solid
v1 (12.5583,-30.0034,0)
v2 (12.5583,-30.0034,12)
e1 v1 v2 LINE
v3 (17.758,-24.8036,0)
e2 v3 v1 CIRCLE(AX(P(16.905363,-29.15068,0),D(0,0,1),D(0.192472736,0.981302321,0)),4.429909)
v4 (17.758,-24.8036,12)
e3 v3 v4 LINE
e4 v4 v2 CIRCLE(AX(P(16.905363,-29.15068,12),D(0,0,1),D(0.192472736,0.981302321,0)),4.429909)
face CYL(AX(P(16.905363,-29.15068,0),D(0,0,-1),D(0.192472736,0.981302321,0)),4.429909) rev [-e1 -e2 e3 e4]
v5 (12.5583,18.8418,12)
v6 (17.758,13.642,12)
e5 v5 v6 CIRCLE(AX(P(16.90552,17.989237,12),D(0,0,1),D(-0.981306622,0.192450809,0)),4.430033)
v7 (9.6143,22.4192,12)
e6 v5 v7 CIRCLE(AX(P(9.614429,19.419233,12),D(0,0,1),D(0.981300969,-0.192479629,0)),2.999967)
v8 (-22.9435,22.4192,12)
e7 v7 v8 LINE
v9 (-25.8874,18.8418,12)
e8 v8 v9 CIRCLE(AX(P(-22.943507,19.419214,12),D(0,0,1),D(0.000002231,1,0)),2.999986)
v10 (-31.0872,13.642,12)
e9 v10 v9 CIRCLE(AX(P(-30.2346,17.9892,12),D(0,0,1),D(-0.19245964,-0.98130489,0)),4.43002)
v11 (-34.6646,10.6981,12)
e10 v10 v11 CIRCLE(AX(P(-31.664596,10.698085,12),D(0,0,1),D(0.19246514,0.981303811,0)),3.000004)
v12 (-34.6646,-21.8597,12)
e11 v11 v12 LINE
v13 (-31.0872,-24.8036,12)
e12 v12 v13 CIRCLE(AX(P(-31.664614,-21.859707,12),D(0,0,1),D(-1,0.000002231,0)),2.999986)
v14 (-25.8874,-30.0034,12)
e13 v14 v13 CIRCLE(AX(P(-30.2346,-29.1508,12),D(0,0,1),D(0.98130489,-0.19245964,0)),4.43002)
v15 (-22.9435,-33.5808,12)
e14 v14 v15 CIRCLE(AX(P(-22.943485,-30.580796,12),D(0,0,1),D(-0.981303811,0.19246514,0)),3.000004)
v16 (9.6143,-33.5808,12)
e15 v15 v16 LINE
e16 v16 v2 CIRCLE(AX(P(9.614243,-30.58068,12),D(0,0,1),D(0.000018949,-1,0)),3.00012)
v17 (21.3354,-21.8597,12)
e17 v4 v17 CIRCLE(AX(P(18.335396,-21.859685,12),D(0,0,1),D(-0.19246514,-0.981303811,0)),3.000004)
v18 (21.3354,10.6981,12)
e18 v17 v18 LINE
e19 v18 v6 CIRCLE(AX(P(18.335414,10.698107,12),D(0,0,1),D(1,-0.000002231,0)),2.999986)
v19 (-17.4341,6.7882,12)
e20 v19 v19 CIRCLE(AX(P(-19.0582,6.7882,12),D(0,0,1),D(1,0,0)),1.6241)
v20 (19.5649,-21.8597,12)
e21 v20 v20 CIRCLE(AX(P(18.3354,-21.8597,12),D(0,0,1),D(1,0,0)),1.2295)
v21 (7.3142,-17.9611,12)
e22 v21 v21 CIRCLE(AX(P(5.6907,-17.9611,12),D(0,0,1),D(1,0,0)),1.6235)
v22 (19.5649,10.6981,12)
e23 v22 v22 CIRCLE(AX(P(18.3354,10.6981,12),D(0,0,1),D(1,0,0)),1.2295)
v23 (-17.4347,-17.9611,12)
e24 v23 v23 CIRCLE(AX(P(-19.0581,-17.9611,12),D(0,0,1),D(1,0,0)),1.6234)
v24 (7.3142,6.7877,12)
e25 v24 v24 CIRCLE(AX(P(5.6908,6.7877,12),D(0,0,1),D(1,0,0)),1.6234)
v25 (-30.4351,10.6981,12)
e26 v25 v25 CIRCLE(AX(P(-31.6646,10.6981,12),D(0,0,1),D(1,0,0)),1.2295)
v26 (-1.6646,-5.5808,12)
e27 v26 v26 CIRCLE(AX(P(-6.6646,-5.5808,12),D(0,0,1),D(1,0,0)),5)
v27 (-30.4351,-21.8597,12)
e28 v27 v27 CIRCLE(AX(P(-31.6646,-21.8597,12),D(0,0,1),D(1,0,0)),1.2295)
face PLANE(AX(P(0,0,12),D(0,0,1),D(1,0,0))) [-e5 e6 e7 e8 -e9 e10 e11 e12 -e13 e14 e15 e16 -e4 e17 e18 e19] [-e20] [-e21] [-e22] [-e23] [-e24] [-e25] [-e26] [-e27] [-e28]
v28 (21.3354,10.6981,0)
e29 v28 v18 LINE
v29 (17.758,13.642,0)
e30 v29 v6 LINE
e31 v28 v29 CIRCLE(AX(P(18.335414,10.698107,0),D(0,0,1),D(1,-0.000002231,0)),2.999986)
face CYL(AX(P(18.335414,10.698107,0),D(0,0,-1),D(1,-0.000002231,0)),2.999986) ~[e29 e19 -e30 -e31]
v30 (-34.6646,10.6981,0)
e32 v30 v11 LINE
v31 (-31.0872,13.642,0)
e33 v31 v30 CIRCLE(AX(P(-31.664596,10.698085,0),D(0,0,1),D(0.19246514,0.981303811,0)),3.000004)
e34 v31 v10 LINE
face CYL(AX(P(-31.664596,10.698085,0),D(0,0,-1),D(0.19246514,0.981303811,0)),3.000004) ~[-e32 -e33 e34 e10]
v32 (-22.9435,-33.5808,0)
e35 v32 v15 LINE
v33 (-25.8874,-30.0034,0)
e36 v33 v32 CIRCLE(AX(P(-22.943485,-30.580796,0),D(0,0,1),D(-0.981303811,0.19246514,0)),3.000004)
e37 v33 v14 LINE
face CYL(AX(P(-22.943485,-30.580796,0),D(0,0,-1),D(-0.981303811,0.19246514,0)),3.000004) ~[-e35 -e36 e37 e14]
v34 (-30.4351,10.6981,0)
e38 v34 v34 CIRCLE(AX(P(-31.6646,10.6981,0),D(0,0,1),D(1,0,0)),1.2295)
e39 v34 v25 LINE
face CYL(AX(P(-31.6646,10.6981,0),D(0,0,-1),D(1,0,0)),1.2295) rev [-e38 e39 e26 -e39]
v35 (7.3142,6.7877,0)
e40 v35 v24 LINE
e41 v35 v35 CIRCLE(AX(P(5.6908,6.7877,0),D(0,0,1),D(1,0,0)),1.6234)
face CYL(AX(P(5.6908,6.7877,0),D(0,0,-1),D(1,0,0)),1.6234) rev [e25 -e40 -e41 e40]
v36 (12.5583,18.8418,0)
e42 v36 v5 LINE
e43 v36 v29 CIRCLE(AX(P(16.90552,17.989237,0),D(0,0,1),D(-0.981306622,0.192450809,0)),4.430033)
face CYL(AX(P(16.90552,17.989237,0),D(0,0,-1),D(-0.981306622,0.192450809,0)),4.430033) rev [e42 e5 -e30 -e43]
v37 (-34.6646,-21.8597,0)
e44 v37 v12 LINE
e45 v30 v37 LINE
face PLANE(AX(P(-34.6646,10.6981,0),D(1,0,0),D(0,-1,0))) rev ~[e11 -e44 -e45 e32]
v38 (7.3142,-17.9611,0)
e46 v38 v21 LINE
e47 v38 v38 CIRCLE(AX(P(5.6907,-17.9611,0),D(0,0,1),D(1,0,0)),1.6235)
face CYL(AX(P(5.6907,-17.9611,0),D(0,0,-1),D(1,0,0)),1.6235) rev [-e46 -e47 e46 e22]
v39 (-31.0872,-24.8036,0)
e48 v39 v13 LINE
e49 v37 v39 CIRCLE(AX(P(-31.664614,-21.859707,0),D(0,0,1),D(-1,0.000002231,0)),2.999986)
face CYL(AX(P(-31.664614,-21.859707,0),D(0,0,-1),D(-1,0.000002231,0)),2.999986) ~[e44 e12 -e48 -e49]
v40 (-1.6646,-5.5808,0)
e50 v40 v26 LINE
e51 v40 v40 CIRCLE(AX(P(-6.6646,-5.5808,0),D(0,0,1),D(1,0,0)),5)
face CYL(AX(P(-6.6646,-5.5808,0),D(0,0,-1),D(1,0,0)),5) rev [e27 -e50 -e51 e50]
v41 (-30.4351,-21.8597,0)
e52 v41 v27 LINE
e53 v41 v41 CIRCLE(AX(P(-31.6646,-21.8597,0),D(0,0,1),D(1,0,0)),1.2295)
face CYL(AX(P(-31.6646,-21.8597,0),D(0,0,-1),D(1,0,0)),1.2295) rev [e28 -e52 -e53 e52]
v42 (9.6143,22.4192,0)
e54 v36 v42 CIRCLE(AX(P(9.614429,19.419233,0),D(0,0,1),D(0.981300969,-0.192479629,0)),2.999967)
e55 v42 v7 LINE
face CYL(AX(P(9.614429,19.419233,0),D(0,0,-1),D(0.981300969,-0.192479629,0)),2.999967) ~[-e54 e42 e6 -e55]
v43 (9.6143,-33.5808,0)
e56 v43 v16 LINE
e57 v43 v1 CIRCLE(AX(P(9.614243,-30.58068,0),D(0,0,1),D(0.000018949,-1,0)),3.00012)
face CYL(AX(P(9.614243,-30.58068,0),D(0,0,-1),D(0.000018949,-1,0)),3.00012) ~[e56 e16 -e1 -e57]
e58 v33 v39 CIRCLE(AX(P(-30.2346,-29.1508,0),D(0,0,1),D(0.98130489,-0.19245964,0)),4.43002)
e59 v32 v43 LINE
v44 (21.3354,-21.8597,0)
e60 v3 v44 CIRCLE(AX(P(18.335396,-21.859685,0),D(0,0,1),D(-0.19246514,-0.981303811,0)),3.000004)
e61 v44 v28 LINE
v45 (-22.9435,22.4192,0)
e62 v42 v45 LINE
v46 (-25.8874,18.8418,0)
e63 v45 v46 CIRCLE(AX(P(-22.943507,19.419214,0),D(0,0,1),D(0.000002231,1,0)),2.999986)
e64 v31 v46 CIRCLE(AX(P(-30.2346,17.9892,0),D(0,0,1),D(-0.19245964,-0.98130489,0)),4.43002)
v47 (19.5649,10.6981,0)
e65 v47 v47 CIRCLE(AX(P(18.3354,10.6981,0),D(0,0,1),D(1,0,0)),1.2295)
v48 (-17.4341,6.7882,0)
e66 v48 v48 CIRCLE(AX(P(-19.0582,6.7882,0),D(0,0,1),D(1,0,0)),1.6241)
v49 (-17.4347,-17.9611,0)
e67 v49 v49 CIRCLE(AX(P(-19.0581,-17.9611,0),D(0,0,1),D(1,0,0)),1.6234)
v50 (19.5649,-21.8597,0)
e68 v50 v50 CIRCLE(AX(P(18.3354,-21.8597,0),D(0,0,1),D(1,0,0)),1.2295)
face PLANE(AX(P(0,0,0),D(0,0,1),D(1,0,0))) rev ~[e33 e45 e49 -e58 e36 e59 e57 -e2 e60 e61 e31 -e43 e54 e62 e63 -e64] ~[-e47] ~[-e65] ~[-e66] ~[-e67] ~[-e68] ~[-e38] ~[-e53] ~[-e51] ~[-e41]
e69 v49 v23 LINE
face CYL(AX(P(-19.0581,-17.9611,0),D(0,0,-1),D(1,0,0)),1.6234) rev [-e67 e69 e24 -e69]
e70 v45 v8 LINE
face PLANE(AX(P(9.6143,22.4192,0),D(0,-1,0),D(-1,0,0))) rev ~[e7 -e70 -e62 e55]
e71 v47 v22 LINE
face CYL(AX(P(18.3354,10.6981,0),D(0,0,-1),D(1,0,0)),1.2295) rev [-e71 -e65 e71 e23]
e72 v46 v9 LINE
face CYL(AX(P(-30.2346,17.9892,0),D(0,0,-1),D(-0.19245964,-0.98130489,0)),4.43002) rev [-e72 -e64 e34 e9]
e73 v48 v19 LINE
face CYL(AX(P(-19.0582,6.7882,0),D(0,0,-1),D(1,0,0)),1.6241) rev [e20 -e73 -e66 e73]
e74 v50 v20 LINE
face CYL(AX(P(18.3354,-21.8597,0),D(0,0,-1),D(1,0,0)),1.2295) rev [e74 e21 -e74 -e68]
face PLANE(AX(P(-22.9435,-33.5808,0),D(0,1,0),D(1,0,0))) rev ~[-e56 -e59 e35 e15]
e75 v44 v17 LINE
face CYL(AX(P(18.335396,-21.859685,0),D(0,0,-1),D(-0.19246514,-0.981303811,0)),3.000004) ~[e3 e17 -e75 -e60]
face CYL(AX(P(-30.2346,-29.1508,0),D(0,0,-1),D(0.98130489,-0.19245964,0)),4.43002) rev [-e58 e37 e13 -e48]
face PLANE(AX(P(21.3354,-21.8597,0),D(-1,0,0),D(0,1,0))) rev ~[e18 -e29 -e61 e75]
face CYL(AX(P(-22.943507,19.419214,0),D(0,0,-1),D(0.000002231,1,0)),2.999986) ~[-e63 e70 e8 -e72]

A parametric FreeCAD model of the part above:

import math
import FreeCAD as App
import Part
import Sketcher

V = App.Vector
Q = App.Units.Quantity

doc = App.newDocument("Part")
body = doc.addObject("PartDesign::Body", "Body")

# Sketch on XY plane
sketch1 = body.newObject("Sketcher::SketchObject", "Sketch")
sketch1.AttachmentSupport = (doc.getObject("XY_Plane"), [""])
sketch1.MapMode = "FlatFace"
sketch1.addGeometry([
    Part.LineSegment(V(21.3354, -21.8597, 0), V(21.3354, 10.6981, 0)),  # 0
    Part.ArcOfCircle(Part.Circle(V(18.3354, 10.6981, 0), V(0, 0, 1), 3), math.radians(0), math.radians(101.09681)),  # 1
    Part.ArcOfCircle(Part.Circle(V(16.9054, 17.9892, 0), V(0, 0, 1), 4.429922), math.radians(168.90339), math.radians(281.096361)),  # 2
    Part.ArcOfCircle(Part.Circle(V(9.6143, 19.4192, 0), V(0, 0, 1), 3.000088), math.radians(-11.096442), math.radians(90)),  # 3
    Part.LineSegment(V(9.6143, 22.4192, 0), V(-22.9435, 22.4192, 0)),  # 4
    Part.ArcOfCircle(Part.Circle(V(-22.9435, 19.4192, 0), V(0, 0, 1), 3), math.radians(90), math.radians(191.09681)),  # 5
    Part.ArcOfCircle(Part.Circle(V(-30.2346, 17.9892, 0), V(0, 0, 1), 4.43002), math.radians(-101.096361), math.radians(11.096361)),  # 6
    Part.ArcOfCircle(Part.Circle(V(-31.6646, 10.6981, 0), V(0, 0, 1), 2.99999), math.radians(78.90319), math.radians(180)),  # 7
    Part.LineSegment(V(-34.6646, 10.6981, 0), V(-34.6646, -21.8597, 0)),  # 8
    Part.ArcOfCircle(Part.Circle(V(-31.6646, -21.8597, 0), V(0, 0, 1), 3), math.radians(180), math.radians(281.09681)),  # 9
    Part.ArcOfCircle(Part.Circle(V(-30.2346, -29.1508, 0), V(0, 0, 1), 4.43002), math.radians(-11.096361), math.radians(101.096361)),  # 10
    Part.ArcOfCircle(Part.Circle(V(-22.9435, -30.5808, 0), V(0, 0, 1), 2.99999), math.radians(168.90319), math.radians(270)),  # 11
    Part.LineSegment(V(-22.9435, -33.5808, 0), V(9.6143, -33.5808, 0)),  # 12
    Part.ArcOfCircle(Part.Circle(V(9.6143, -30.5808, 0), V(0, 0, 1), 3), math.radians(-90), math.radians(11.096442)),  # 13
    Part.ArcOfCircle(Part.Circle(V(16.9054, -29.1508, 0), V(0, 0, 1), 4.43002), math.radians(78.903639), math.radians(191.09661)),  # 14
    Part.ArcOfCircle(Part.Circle(V(18.3354, -21.8597, 0), V(0, 0, 1), 2.99999), math.radians(-101.09681), math.radians(0)),  # 15
    Part.Circle(V(-31.6646, -21.8597, 0), V(0, 0, 1), 1.2295),  # 16
    Part.Circle(V(-19.0581, -17.9611, 0), V(0, 0, 1), 1.6234),  # 17
    Part.Circle(V(18.3354, -21.8597, 0), V(0, 0, 1), 1.2295),  # 18
    Part.Circle(V(5.6907, -17.9611, 0), V(0, 0, 1), 1.6235),  # 19
    Part.Circle(V(-6.6646, -5.5808, 0), V(0, 0, 1), 5),  # 20
    Part.Circle(V(-19.0582, 6.7882, 0), V(0, 0, 1), 1.6241),  # 21
    Part.Circle(V(-31.6646, 10.6981, 0), V(0, 0, 1), 1.2295),  # 22
    Part.Circle(V(5.6908, 6.7877, 0), V(0, 0, 1), 1.6234),  # 23
    Part.Circle(V(18.3354, 10.6981, 0), V(0, 0, 1), 1.2295),  # 24
], False)
sketch1.addConstraint([
    Sketcher.Constraint("Tangent", 0, 2, 1, 1),
    Sketcher.Constraint("Tangent", 1, 2, 2, 2),
    Sketcher.Constraint("Tangent", 2, 1, 3, 1),
    Sketcher.Constraint("Tangent", 3, 2, 4, 1),
    Sketcher.Constraint("Tangent", 4, 2, 5, 1),
    Sketcher.Constraint("Tangent", 5, 2, 6, 2),
    Sketcher.Constraint("Tangent", 6, 1, 7, 1),
    Sketcher.Constraint("Tangent", 7, 2, 8, 1),
    Sketcher.Constraint("Tangent", 8, 2, 9, 1),
    Sketcher.Constraint("Tangent", 9, 2, 10, 2),
    Sketcher.Constraint("Tangent", 10, 1, 11, 1),
    Sketcher.Constraint("Tangent", 11, 2, 12, 1),
    Sketcher.Constraint("Tangent", 12, 2, 13, 1),
    Sketcher.Constraint("Tangent", 13, 2, 14, 2),
    Sketcher.Constraint("Tangent", 14, 1, 15, 1),
    Sketcher.Constraint("Tangent", 15, 2, 0, 1),
    Sketcher.Constraint("Vertical", 0),
    Sketcher.Constraint("Horizontal", 4),
    Sketcher.Constraint("Vertical", 8),
    Sketcher.Constraint("Horizontal", 12),
    Sketcher.Constraint("Coincident", 16, 3, 9, 3),
    Sketcher.Constraint("Coincident", 18, 3, 15, 3),
    Sketcher.Constraint("Coincident", 22, 3, 7, 3),
    Sketcher.Constraint("Coincident", 24, 3, 1, 3),
    Sketcher.Constraint("Equal", 1, 3),
    Sketcher.Constraint("Equal", 3, 5),
    Sketcher.Constraint("Equal", 2, 6),
    Sketcher.Constraint("Equal", 5, 7),
    Sketcher.Constraint("Equal", 7, 9),
    Sketcher.Constraint("Equal", 6, 10),
    Sketcher.Constraint("Equal", 9, 11),
    Sketcher.Constraint("Equal", 11, 13),
    Sketcher.Constraint("Equal", 10, 14),
    Sketcher.Constraint("Equal", 13, 15),
    Sketcher.Constraint("Equal", 16, 18),
    Sketcher.Constraint("Equal", 17, 19),
    Sketcher.Constraint("Equal", 18, 22),
    Sketcher.Constraint("Equal", 19, 23),
    Sketcher.Constraint("Equal", 22, 24),
    Sketcher.Constraint("Horizontal", 2, 3, 6, 3),
    Sketcher.Constraint("Horizontal", 1, 3, 7, 3),
    Sketcher.Constraint("Horizontal", 10, 3, 14, 3),
    Sketcher.Constraint("Horizontal", 9, 3, 15, 3),
    Sketcher.Constraint("Horizontal", 17, 3, 19, 3),
    Sketcher.Constraint("Vertical", 6, 3, 10, 3),
    Sketcher.Constraint("Vertical", 5, 3, 11, 3),
    Sketcher.Constraint("Vertical", 17, 3, 21, 3),
    Sketcher.Constraint("Vertical", 19, 3, 23, 3),
    Sketcher.Constraint("Equal", 12, 0),
    Sketcher.Constraint("Diameter", 20, Q("10 mm")),
    Sketcher.Constraint("Radius", 1, Q("3 mm")),
    Sketcher.Constraint("Radius", 2, Q("4.43 mm")),
    Sketcher.Constraint("Diameter", 16, Q("2.459 mm")),
    Sketcher.Constraint("Diameter", 19, Q("3.247 mm")),
    Sketcher.Constraint("DistanceX", 7, 3, 1, 3, Q("50 mm")),
    Sketcher.Constraint("DistanceY", 11, 3, 5, 3, Q("50 mm")),
    Sketcher.Constraint("DistanceX", 20, 3, 1, 3, Q("25 mm")),
    Sketcher.Constraint("DistanceY", 20, 3, 3, 3, Q("25 mm")),
    Sketcher.Constraint("Diameter", 21, Q("3.2482 mm")),
    Sketcher.Constraint("DistanceX", 2, 3, 1, 3, Q("1.43 mm")),
    Sketcher.Constraint("DistanceY", 21, 3, 7, 3, Q("3.91 mm")),
    Sketcher.Constraint("DistanceY", -1, 1, 1, 3, Q("10.698 mm")),
    Sketcher.Constraint("DistanceX", 17, 3, -1, 1, Q("19.058 mm")),
    Sketcher.Constraint("DistanceY", 17, 3, -1, 1, Q("17.961 mm")),
    Sketcher.Constraint("DistanceX", -1, 1, 1, 2, Q("17.758 mm")),
    Sketcher.Constraint("DistanceX", -1, 1, 19, 3, Q("5.6907 mm")),
    Sketcher.Constraint("DistanceY", -1, 1, 23, 3, Q("6.7877 mm")),
])
pad1 = body.newObject("PartDesign::Pad", "Pad")
pad1.Profile = sketch1
pad1.Length = 12

doc.recompute()
